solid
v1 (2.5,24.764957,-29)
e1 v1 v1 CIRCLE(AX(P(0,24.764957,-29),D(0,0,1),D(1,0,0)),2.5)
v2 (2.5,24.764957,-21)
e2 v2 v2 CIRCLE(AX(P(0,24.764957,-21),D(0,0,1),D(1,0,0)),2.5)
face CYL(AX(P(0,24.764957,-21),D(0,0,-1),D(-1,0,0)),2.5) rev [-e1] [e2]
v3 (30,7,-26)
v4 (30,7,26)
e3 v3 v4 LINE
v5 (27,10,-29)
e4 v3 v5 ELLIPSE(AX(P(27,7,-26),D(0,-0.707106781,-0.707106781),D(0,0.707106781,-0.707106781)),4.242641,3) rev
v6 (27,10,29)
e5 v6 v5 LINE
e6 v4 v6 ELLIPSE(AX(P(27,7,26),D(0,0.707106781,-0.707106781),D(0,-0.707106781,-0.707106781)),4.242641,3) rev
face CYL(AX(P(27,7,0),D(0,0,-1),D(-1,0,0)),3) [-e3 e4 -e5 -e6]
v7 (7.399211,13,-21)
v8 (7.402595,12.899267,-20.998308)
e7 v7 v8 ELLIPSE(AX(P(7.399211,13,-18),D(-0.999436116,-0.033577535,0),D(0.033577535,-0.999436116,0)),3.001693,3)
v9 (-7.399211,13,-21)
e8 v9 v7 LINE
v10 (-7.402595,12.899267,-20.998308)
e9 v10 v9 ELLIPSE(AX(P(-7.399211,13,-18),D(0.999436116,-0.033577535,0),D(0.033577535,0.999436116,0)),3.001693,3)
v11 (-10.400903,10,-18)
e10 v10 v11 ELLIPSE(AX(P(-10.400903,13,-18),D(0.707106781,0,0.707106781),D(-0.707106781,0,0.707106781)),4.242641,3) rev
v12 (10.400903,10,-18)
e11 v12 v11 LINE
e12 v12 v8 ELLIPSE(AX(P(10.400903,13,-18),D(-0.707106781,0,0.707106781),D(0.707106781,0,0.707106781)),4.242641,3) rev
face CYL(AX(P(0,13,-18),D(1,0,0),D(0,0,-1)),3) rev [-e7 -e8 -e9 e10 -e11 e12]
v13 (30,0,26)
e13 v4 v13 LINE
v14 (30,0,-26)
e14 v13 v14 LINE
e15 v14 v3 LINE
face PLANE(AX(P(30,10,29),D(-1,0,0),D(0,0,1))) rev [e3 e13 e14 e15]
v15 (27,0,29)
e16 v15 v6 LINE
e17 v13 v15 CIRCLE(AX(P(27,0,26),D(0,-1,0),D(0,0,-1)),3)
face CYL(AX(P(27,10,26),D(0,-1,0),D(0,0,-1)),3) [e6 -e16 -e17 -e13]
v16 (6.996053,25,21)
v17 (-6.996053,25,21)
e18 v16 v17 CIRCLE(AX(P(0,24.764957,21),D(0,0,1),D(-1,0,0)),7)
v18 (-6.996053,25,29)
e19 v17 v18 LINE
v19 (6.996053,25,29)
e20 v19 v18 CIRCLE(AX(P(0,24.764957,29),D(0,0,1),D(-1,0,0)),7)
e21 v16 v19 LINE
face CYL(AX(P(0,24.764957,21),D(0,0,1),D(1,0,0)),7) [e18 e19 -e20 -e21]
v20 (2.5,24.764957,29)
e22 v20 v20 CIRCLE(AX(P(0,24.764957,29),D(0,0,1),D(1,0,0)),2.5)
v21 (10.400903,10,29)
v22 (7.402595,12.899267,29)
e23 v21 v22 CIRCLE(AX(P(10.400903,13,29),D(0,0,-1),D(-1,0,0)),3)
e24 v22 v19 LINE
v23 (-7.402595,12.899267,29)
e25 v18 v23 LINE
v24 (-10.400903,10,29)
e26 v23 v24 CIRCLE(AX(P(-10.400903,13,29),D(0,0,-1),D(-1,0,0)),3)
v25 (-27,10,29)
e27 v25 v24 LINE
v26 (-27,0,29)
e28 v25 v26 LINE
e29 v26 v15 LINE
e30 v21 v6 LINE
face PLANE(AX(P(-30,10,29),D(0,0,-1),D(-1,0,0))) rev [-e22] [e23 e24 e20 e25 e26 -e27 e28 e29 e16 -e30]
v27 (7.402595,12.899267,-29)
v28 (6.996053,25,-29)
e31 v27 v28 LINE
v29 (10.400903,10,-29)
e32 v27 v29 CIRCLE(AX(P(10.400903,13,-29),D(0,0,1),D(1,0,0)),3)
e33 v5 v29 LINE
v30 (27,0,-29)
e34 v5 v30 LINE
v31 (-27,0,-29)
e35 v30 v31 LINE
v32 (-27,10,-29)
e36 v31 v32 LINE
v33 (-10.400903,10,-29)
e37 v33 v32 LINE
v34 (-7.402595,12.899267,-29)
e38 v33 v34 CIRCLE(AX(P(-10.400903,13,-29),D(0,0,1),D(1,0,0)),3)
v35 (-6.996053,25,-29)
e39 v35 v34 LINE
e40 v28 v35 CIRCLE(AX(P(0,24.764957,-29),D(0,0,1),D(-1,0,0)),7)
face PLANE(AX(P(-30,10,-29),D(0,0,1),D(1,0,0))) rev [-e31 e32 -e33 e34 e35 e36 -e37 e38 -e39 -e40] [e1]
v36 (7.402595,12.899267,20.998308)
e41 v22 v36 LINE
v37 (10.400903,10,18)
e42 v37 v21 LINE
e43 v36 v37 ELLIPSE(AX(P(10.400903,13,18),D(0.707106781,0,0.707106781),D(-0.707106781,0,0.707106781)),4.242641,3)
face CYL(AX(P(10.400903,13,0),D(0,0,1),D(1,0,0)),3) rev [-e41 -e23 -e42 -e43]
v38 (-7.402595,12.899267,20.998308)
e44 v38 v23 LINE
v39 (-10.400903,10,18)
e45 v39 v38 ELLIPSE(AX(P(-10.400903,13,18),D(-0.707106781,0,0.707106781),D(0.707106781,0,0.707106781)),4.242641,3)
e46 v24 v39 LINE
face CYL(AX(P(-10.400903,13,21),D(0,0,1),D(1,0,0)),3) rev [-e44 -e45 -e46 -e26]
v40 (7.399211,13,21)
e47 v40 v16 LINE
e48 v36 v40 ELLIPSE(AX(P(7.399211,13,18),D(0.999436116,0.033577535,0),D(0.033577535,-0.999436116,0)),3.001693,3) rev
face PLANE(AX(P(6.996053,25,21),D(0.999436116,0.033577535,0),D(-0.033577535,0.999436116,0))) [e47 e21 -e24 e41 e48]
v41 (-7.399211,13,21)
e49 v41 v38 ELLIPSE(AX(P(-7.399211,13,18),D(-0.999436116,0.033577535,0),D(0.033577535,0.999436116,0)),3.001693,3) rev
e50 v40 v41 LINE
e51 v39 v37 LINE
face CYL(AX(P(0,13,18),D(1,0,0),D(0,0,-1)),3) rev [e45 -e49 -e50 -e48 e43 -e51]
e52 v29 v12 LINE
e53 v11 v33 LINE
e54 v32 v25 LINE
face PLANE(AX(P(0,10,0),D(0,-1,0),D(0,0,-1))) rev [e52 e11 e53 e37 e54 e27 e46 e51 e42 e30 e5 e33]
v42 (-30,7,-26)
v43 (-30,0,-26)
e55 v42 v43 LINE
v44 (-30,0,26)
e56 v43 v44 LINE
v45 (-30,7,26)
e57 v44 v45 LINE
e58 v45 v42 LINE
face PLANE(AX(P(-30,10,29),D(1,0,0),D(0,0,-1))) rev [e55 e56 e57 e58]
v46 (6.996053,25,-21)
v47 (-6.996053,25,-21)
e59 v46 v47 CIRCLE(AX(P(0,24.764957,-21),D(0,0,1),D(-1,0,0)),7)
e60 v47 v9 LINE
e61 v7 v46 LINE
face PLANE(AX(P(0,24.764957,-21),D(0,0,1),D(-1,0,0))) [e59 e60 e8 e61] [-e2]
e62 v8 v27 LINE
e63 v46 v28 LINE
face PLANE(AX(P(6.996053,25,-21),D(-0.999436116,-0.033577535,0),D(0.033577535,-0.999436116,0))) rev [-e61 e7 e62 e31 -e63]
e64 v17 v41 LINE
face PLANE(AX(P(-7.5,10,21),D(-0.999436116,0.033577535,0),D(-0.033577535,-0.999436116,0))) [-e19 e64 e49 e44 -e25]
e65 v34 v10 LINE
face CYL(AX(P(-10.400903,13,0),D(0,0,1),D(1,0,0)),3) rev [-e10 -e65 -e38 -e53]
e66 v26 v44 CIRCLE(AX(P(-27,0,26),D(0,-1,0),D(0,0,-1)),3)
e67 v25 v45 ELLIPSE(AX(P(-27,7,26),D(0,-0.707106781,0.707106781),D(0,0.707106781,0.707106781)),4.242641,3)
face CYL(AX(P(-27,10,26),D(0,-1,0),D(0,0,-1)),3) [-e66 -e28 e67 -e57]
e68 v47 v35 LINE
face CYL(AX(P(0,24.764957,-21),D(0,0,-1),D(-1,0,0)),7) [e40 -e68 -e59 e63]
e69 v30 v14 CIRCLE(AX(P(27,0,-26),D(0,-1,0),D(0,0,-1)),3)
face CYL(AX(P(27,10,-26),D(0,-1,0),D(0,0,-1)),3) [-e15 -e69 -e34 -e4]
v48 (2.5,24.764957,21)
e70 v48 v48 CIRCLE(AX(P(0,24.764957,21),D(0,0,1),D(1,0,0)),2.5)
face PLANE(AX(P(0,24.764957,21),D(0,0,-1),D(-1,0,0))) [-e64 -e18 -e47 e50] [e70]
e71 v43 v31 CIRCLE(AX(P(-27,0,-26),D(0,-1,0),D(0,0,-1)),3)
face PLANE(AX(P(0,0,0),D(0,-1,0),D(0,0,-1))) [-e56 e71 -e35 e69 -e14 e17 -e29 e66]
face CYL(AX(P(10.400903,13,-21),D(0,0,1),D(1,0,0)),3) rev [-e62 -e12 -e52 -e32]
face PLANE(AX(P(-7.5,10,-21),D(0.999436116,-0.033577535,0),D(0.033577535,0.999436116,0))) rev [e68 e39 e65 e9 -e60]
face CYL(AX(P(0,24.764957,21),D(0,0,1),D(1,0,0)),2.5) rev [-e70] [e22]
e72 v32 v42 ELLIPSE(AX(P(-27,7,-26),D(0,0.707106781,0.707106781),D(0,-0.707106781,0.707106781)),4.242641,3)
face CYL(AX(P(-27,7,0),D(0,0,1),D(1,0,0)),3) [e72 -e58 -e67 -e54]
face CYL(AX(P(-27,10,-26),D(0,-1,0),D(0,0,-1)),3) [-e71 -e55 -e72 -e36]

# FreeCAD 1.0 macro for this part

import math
import FreeCAD as App
import Part
import Sketcher
from FreeCAD import Vector
Q = App.Units.Quantity


def edges_at(feature, points):
    """Names of the edges that pass closest to the given points."""
    edges = feature.Shape.Edges
    near = lambda p: min(range(len(edges)), key=lambda i: edges[i].distToShape(Part.Vertex(*p))[0])
    return sorted({f"Edge{near(p) + 1}" for p in points})


def add_polygon(sketch, points):
    """Adds a closed chain of lines whose ends are joined by coincident constraints."""
    first, n = sketch.GeometryCount, len(points)
    for a, b in zip(points, points[1:] + points[:1]):
        sketch.addGeometry(Part.LineSegment(App.Vector(*a, 0), App.Vector(*b, 0)), False)
    for i in range(n):
        sketch.addConstraint(Sketcher.Constraint("Coincident", first + i, 2, first + (i + 1) % n, 1))

doc = App.newDocument("Part")
body = doc.addObject("PartDesign::Body", "Body")

# Sketch on XZ plane
sketch1 = doc.addObject("Sketcher::SketchObject", "Sketch")
body.addObject(sketch1)
sketch1.AttachmentSupport = (doc.XZ_Plane, [""])
sketch1.MapMode = "FlatFace"
add_polygon(sketch1, [(-30, -29), (-30, 29), (30, 29), (30, -29)])  # lines 0-3
sketch1.addConstraint([
    Sketcher.Constraint("Vertical", 0),
    Sketcher.Constraint("Horizontal", 1),
    Sketcher.Constraint("Vertical", 2),
    Sketcher.Constraint("Horizontal", 3),
    Sketcher.Constraint("Symmetric", 0, 2, 2, 2, -1, 1),
    Sketcher.Constraint("DistanceX", 1, 1, 1, 2, Q("60 mm")),
    Sketcher.Constraint("DistanceY", 0, 1, 0, 2, Q("58 mm")),
])
pad1 = doc.addObject("PartDesign::Pad", "Pad")
body.addObject(pad1)
pad1.Profile = sketch1
pad1.Length = 10
pad1.Reversed = True

# Sketch on XY plane
sketch2 = doc.addObject("Sketcher::SketchObject", "Sketch001")
body.addObject(sketch2)
sketch2.AttachmentSupport = (doc.XY_Plane, [""])
sketch2.MapMode = "FlatFace"
sketch2.AttachmentOffset = App.Placement(Vector(0, 0, 29), App.Rotation())
sketch2.addGeometry([
    Part.LineSegment(Vector(-7, 25, 0), Vector(-7.5, 10, 0)),  # 0
    Part.LineSegment(Vector(-7.5, 10, 0), Vector(7.5, 10, 0)),  # 1
    Part.LineSegment(Vector(7.5, 10, 0), Vector(7, 25, 0)),  # 2
    Part.ArcOfCircle(Part.Circle(Vector(0, 24.8, 0), Vector(0, 0, 1), 7), math.radians(2), math.radians(178)),  # 3
    Part.Circle(Vector(0, 24.8, 0), Vector(0, 0, 1), 2.5),  # 4
], False)
sketch2.addConstraint([
    Sketcher.Constraint("Coincident", 0, 2, 1, 1),
    Sketcher.Constraint("Coincident", 1, 2, 2, 1),
    Sketcher.Constraint("Tangent", 2, 2, 3, 1),
    Sketcher.Constraint("Tangent", 3, 2, 0, 1),
    Sketcher.Constraint("Horizontal", 1),
    Sketcher.Constraint("Coincident", 4, 3, 3, 3),
    Sketcher.Constraint("Symmetric", 2, 2, 3, 2, -2),
    Sketcher.Constraint("Diameter", 4, Q("5 mm")),
    Sketcher.Constraint("Radius", 3, Q("7 mm")),
    Sketcher.Constraint("DistanceX", 1, 1, 1, 2, Q("15 mm")),
    Sketcher.Constraint("DistanceY", -1, 1, 0, 2, Q("10 mm")),
    Sketcher.Constraint("DistanceY", -1, 1, 2, 2, Q("25 mm")),
])
pad2 = doc.addObject("PartDesign::Pad", "Pad001")
body.addObject(pad2)
pad2.Profile = sketch2
pad2.Length = 8
pad2.Reversed = True
doc.recompute()

mirrored = doc.addObject("PartDesign::Mirrored", "Mirrored")
body.addObject(mirrored)
mirrored.Originals = [pad2]
mirrored.MirrorPlane = (doc.XY_Plane, [""])
body.Tip = mirrored
doc.recompute()

fillet = doc.addObject("PartDesign::Fillet", "Fillet")
body.addObject(fillet)
fillet.Base = (mirrored, edges_at(mirrored, [
    (-30, 10, 0),
    (0, 10, 21),
    (7.5, 10, 25),
    (-7.5, 10, 25),
    (0, 10, -21),
    (-7.5, 10, -25),
    (7.5, 10, -25),
    (30, 10, 0),
    (30, 5, 29),
    (-30, 5, 29),
    (-30, 5, -29),
    (30, 5, -29),
]))
fillet.Radius = 3

doc.recompute()
